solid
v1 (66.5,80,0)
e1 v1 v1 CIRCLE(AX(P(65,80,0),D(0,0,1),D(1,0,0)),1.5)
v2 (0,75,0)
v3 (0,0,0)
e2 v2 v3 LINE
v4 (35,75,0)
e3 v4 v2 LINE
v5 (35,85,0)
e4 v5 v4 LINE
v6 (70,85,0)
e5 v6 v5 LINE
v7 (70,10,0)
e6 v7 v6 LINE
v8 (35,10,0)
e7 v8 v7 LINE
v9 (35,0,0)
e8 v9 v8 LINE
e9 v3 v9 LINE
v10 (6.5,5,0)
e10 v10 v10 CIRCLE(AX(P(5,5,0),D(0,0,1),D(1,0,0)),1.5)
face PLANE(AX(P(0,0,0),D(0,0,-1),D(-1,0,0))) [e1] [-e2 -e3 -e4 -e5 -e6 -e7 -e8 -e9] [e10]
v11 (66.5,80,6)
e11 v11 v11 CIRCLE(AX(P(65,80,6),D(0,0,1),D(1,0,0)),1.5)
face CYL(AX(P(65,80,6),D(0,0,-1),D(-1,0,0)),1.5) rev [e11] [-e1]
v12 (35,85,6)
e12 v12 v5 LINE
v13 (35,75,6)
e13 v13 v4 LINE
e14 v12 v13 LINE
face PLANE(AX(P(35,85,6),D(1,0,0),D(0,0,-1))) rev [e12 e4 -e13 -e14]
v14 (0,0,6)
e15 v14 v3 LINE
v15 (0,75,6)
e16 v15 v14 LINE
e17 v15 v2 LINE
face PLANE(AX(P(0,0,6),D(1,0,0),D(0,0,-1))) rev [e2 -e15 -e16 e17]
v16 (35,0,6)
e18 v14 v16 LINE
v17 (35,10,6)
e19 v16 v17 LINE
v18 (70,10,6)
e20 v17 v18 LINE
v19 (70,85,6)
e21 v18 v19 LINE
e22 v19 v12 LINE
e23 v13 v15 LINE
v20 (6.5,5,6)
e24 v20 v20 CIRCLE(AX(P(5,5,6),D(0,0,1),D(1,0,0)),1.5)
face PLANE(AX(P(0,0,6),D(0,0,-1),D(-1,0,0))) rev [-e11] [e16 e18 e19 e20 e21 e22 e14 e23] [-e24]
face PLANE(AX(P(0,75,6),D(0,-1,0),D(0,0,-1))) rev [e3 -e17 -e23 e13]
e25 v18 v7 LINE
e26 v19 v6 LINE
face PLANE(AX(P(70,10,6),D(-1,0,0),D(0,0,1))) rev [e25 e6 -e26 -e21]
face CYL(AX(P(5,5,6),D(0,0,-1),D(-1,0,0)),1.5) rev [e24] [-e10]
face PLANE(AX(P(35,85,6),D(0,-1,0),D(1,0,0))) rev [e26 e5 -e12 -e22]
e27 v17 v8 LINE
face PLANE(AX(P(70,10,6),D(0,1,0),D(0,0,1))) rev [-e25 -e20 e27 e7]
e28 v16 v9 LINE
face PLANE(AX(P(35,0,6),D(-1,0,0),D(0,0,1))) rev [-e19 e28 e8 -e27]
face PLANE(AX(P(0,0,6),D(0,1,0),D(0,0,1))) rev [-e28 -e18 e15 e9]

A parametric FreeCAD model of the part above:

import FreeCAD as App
import Part
import Sketcher

V = App.Vector

doc = App.newDocument("Part")
body = doc.addObject("PartDesign::Body", "Body")

# Sketch on XY plane
sketch1 = body.newObject("Sketcher::SketchObject", "Sketch")
sketch1.AttachmentSupport = (doc.getObject("XY_Plane"), [""])
sketch1.MapMode = "FlatFace"
sketch1.addGeometry(Part.LineSegment(V(0, 0, 0), V(35, 0, 0)), False)
sketch1.addGeometry(Part.LineSegment(V(35, 0, 0), V(35, 10, 0)), False)
sketch1.addGeometry(Part.LineSegment(V(35, 10, 0), V(70, 10, 0)), False)
sketch1.addGeometry(Part.LineSegment(V(70, 10, 0), V(70, 85, 0)), False)
sketch1.addGeometry(Part.LineSegment(V(70, 85, 0), V(35, 85, 0)), False)
sketch1.addGeometry(Part.LineSegment(V(35, 85, 0), V(35, 75, 0)), False)
sketch1.addGeometry(Part.LineSegment(V(35, 75, 0), V(0, 75, 0)), False)
sketch1.addGeometry(Part.LineSegment(V(0, 75, 0), V(0, 0, 0)), False)
sketch1.addGeometry(Part.Circle(V(5, 5, 0), V(0, 0, 1), 1.5), False)
sketch1.addGeometry(Part.Circle(V(65, 80, 0), V(0, 0, 1), 1.5), False)
sketch1.addConstraint(Sketcher.Constraint("Coincident", 0, 2, 1, 1))
sketch1.addConstraint(Sketcher.Constraint("Coincident", 1, 2, 2, 1))
sketch1.addConstraint(Sketcher.Constraint("Coincident", 2, 2, 3, 1))
sketch1.addConstraint(Sketcher.Constraint("Coincident", 3, 2, 4, 1))
sketch1.addConstraint(Sketcher.Constraint("Coincident", 4, 2, 5, 1))
sketch1.addConstraint(Sketcher.Constraint("Coincident", 5, 2, 6, 1))
sketch1.addConstraint(Sketcher.Constraint("Coincident", 6, 2, 7, 1))
sketch1.addConstraint(Sketcher.Constraint("Coincident", 7, 2, 0, 1))
sketch1.addConstraint(Sketcher.Constraint("Horizontal", 0))
sketch1.addConstraint(Sketcher.Constraint("Vertical", 1))
sketch1.addConstraint(Sketcher.Constraint("Horizontal", 2))
sketch1.addConstraint(Sketcher.Constraint("Vertical", 3))
sketch1.addConstraint(Sketcher.Constraint("Horizontal", 4))
sketch1.addConstraint(Sketcher.Constraint("Vertical", 5))
sketch1.addConstraint(Sketcher.Constraint("Horizontal", 6))
sketch1.addConstraint(Sketcher.Constraint("Vertical", 7))
sketch1.addConstraint(Sketcher.Constraint("Coincident", 7, 2, -1, 1))
sketch1.addConstraint(Sketcher.Constraint("Equal", 8, 9))
sketch1.addConstraint(Sketcher.Constraint("Vertical", 1, 2, 4, 2))
sketch1.addConstraint(Sketcher.Constraint("Equal", 0, 2))
sketch1.addConstraint(Sketcher.Constraint("Equal", 1, 5))
sketch1.addConstraint(Sketcher.Constraint("Diameter", 8, 3.0))
sketch1.addConstraint(Sketcher.Constraint("DistanceX", 0, 1, 0, 2, 35.0))
sketch1.addConstraint(Sketcher.Constraint("DistanceY", 1, 1, 1, 2, 10.0))
sketch1.addConstraint(Sketcher.Constraint("DistanceY", 3, 1, 3, 2, 75.0))
sketch1.addConstraint(Sketcher.Constraint("DistanceX", -1, 1, 8, 3, 5.0))
sketch1.addConstraint(Sketcher.Constraint("DistanceY", -1, 1, 8, 3, 5.0))
sketch1.addConstraint(Sketcher.Constraint("DistanceX", -1, 1, 9, 3, 65.0))
sketch1.addConstraint(Sketcher.Constraint("DistanceY", -1, 1, 9, 3, 80.0))
pad1 = body.newObject("PartDesign::Pad", "Pad")
pad1.Profile = sketch1
pad1.Length = 6

doc.recompute()
